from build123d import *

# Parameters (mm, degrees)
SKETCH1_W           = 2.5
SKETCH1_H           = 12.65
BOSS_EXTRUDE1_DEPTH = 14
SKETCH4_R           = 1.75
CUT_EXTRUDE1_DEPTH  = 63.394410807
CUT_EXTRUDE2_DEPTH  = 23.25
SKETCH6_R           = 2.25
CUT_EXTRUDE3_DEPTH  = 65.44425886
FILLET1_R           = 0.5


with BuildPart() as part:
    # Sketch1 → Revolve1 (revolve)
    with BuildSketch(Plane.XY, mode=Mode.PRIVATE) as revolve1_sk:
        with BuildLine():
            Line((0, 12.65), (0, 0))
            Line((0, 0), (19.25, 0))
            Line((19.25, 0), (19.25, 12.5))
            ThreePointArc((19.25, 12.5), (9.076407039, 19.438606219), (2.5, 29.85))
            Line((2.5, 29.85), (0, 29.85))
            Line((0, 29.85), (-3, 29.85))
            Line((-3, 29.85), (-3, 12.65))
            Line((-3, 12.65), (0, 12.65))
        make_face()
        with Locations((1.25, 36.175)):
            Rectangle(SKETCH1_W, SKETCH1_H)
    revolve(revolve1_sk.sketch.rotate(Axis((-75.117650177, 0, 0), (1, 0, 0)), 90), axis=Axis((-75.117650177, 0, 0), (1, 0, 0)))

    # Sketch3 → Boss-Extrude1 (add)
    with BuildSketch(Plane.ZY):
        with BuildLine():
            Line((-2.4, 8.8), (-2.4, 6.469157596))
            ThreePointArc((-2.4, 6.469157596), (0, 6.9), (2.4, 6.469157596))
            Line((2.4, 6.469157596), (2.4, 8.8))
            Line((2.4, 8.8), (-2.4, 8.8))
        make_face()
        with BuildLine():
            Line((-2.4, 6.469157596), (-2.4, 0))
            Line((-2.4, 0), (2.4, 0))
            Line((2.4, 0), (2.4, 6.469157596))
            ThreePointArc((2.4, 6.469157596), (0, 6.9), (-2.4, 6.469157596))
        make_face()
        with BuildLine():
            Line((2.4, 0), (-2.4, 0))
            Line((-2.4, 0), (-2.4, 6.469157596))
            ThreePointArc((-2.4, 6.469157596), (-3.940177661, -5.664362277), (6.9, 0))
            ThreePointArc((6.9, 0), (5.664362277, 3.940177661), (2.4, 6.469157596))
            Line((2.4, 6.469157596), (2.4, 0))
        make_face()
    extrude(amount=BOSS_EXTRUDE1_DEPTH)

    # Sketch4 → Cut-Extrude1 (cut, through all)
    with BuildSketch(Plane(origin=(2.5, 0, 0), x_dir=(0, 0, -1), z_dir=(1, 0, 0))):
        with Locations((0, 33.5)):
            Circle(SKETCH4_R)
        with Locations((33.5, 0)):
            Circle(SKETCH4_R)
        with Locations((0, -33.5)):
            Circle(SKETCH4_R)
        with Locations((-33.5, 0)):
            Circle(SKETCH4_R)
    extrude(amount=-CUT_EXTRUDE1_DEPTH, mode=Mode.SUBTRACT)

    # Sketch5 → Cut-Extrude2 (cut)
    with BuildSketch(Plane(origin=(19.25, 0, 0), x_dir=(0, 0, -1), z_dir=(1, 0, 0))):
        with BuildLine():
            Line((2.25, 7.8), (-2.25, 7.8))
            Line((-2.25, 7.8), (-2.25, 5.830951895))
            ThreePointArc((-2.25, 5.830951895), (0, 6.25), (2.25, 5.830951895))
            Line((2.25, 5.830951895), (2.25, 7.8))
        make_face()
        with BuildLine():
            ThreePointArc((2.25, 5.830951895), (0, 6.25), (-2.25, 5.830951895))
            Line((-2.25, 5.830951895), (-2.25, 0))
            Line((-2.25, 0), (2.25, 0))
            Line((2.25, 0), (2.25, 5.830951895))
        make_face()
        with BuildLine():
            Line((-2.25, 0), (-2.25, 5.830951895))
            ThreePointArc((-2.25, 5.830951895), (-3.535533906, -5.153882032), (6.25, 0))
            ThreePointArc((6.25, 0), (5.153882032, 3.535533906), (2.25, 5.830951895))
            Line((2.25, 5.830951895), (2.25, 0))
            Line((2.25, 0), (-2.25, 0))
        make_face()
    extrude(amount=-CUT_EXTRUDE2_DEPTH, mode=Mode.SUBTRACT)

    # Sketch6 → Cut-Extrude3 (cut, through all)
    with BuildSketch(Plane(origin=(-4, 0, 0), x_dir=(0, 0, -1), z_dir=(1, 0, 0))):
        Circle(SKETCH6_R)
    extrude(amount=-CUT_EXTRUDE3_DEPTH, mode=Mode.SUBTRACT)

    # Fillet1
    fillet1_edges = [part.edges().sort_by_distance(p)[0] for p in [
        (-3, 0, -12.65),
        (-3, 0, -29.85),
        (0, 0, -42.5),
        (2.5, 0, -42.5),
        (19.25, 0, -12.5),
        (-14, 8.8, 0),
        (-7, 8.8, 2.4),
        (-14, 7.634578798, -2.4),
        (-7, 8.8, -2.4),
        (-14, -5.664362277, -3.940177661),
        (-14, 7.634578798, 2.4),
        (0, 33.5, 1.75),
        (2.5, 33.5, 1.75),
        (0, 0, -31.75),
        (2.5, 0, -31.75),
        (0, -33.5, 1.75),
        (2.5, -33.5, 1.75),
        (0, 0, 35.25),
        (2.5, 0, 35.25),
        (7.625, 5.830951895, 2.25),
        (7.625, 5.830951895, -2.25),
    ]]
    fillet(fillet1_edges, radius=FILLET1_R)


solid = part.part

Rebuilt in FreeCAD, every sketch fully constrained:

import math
import FreeCAD as App
import Part
import Sketcher
from FreeCAD import Vector


def edges_at(feature, points):
    """Names of the edges that pass closest to the given points."""
    edges = feature.Shape.Edges
    near = lambda p: min(range(len(edges)), key=lambda i: edges[i].distToShape(Part.Vertex(*p))[0])
    return sorted({f"Edge{near(p) + 1}" for p in points})

doc = App.newDocument("Part")
params = doc.addObject("Spreadsheet::Sheet", "Params")
for row, (alias, value) in enumerate([
    ("sketch1_width", "3 mm"),
    ("sketch1_width2", "2.5 mm"),
    ("sketch1_height", "12.5 mm"),
    ("sketch1_height2", "17.2 mm"),
    ("sketch1_width3", "19.25 mm"),
    ("revolution_angle", "360 deg"),
    ("sketch2_radius", "6.9 mm"),
    ("sketch2_height", "4.8 mm"),
    ("pad1_length", "14 mm"),
    ("sketch3_diameter", "3.5 mm"),
    ("sketch4_radius", "6.25 mm"),
    ("sketch4_height", "4.5 mm"),
    ("pocket2_length", "23.25 mm"),
    ("sketch5_diameter", "4.5 mm"),
    ("fillet_radius", "0.5 mm"),
], start=1):
    params.set(f"A{row}", alias)
    params.set(f"B{row}", "=" + value)
    params.setAlias(f"B{row}", alias)

body = doc.addObject("PartDesign::Body", "Body")

sketch1 = body.newObject("Sketcher::SketchObject", "Sketch")
sketch1.AttachmentSupport = (doc.getObject("XY_Plane"), [""])
sketch1.MapMode = "FlatFace"
sketch1.addGeometry(Part.LineSegment(Vector(0, 12.7, 0), Vector(0, 0, 0)), False)
sketch1.addGeometry(Part.LineSegment(Vector(0, 0, 0), Vector(19.2, 0, 0)), False)
sketch1.addGeometry(Part.LineSegment(Vector(19.2, 0, 0), Vector(19.2, 12.5, 0)), False)
sketch1.addGeometry(Part.ArcOfCircle(Part.Circle(Vector(30.9, 40.5, 0), Vector(0, 0, 1), 30.3), math.radians(-159), math.radians(-113)), False)
sketch1.addGeometry(Part.LineSegment(Vector(2.5, 29.9, 0), Vector(2.5, 42.5, 0)), False)
sketch1.addGeometry(Part.LineSegment(Vector(2.5, 42.5, 0), Vector(0, 42.5, 0)), False)
sketch1.addGeometry(Part.LineSegment(Vector(0, 42.5, 0), Vector(0, 29.9, 0)), False)
sketch1.addGeometry(Part.LineSegment(Vector(0, 29.9, 0), Vector(-3, 29.9, 0)), False)
sketch1.addGeometry(Part.LineSegment(Vector(-3, 29.9, 0), Vector(-3, 12.7, 0)), False)
sketch1.addGeometry(Part.LineSegment(Vector(-3, 12.7, 0), Vector(0, 12.7, 0)), False)
sketch1.addConstraint(Sketcher.Constraint("Coincident", 0, 2, 1, 1))
sketch1.addConstraint(Sketcher.Constraint("Coincident", 1, 2, 2, 1))
sketch1.addConstraint(Sketcher.Constraint("Coincident", 2, 2, 3, 2))
sketch1.addConstraint(Sketcher.Constraint("Coincident", 3, 1, 4, 1))
sketch1.addConstraint(Sketcher.Constraint("Coincident", 4, 2, 5, 1))
sketch1.addConstraint(Sketcher.Constraint("Coincident", 5, 2, 6, 1))
sketch1.addConstraint(Sketcher.Constraint("Coincident", 6, 2, 7, 1))
sketch1.addConstraint(Sketcher.Constraint("Coincident", 7, 2, 8, 1))
sketch1.addConstraint(Sketcher.Constraint("Coincident", 8, 2, 9, 1))
sketch1.addConstraint(Sketcher.Constraint("Coincident", 9, 2, 0, 1))
sketch1.addConstraint(Sketcher.Constraint("Vertical", 0))
sketch1.addConstraint(Sketcher.Constraint("Horizontal", 1))
sketch1.addConstraint(Sketcher.Constraint("Vertical", 2))
sketch1.addConstraint(Sketcher.Constraint("Vertical", 4))
sketch1.addConstraint(Sketcher.Constraint("Horizontal", 5))
sketch1.addConstraint(Sketcher.Constraint("Vertical", 6))
sketch1.addConstraint(Sketcher.Constraint("Horizontal", 7))
sketch1.addConstraint(Sketcher.Constraint("Vertical", 8))
sketch1.addConstraint(Sketcher.Constraint("Horizontal", 9))
sketch1.addConstraint(Sketcher.Constraint("Coincident", 0, 2, -1, 1))
sketch1.addConstraint(Sketcher.Constraint("PointOnObject", 5, 2, -2))
sketch1.addConstraint(Sketcher.Constraint("Horizontal", 3, 1, 6, 2))
sketch1.addConstraint(Sketcher.Constraint("Equal", 0, 4))
sketch1.addConstraint(Sketcher.Constraint("DistanceX", 7, 2, 7, 1, 3.0))
sketch1.addConstraint(Sketcher.Constraint("DistanceX", 5, 2, 5, 1, 2.5))
sketch1.addConstraint(Sketcher.Constraint("DistanceY", 2, 1, 2, 2, 12.5))
sketch1.addConstraint(Sketcher.Constraint("DistanceY", 8, 2, 8, 1, 17.2))
sketch1.addConstraint(Sketcher.Constraint("DistanceY", 2, 2, 4, 2, 30.0))
sketch1.addConstraint(Sketcher.Constraint("DistanceX", 1, 1, 1, 2, 19.25))
sketch1.addConstraint(Sketcher.Constraint("Radius", 3, 30.32925))
sketch1.setExpression("Constraints[23]", "Params.sketch1_width")
sketch1.setExpression("Constraints[24]", "Params.sketch1_width2")
sketch1.setExpression("Constraints[25]", "Params.sketch1_height")
sketch1.setExpression("Constraints[26]", "Params.sketch1_height2")
sketch1.setExpression("Constraints[28]", "Params.sketch1_width3")
revolution = body.newObject("PartDesign::Revolution", "Revolution")
revolution.Profile = sketch1
revolution.ReferenceAxis = (sketch1, ["H_Axis"])
revolution.setExpression("Angle", "Params.revolution_angle")

sketch2 = body.newObject("Sketcher::SketchObject", "Sketch001")
sketch2.AttachmentSupport = (doc.getObject("YZ_Plane"), [""])
sketch2.MapMode = "FlatFace"
sketch2.addGeometry(Part.LineSegment(Vector(6.5, 2.4, 0), Vector(8.8, 2.4, 0)), False)
sketch2.addGeometry(Part.LineSegment(Vector(8.8, 2.4, 0), Vector(8.8, -2.4, 0)), False)
sketch2.addGeometry(Part.LineSegment(Vector(8.8, -2.4, 0), Vector(6.5, -2.4, 0)), False)
sketch2.addGeometry(Part.ArcOfCircle(Part.Circle(Vector(0, 0, 0), Vector(0, 0, 1), 6.9), math.radians(90), math.radians(340)), False)
sketch2.addGeometry(Part.ArcOfCircle(Part.Circle(Vector(0, 0, 0), Vector(0, 0, 1), 6.9), math.radians(20), math.radians(90)), False)
sketch2.addConstraint(Sketcher.Constraint("Coincident", 0, 2, 1, 1))
sketch2.addConstraint(Sketcher.Constraint("Coincident", 1, 2, 2, 1))
sketch2.addConstraint(Sketcher.Constraint("Coincident", 2, 2, 3, 2))
sketch2.addConstraint(Sketcher.Constraint("Tangent", 3, 1, 4, 2))
sketch2.addConstraint(Sketcher.Constraint("Coincident", 4, 1, 0, 1))
sketch2.addConstraint(Sketcher.Constraint("Horizontal", 0))
sketch2.addConstraint(Sketcher.Constraint("Vertical", 1))
sketch2.addConstraint(Sketcher.Constraint("Horizontal", 2))
sketch2.addConstraint(Sketcher.Constraint("Coincident", 3, 3, -1, 1))
sketch2.addConstraint(Sketcher.Constraint("Equal", 3, 4))
sketch2.addConstraint(Sketcher.Constraint("PointOnObject", 3, 1, -2))
sketch2.addConstraint(Sketcher.Constraint("Vertical", 2, 2, 4, 1))
sketch2.addConstraint(Sketcher.Constraint("Radius", 3, 6.9))
sketch2.addConstraint(Sketcher.Constraint("DistanceY", 1, 2, 1, 1, 4.8))
sketch2.addConstraint(Sketcher.Constraint("DistanceX", -1, 1, 0, 2, 8.8))
sketch2.setExpression("Constraints[12]", "Params.sketch2_radius")
sketch2.setExpression("Constraints[13]", "Params.sketch2_height")
pad1 = body.newObject("PartDesign::Pad", "Pad")
pad1.Profile = sketch2
pad1.setExpression("Length", "Params.pad1_length")
pad1.Reversed = True

sketch3 = body.newObject("Sketcher::SketchObject", "Sketch002")
sketch3.AttachmentSupport = (doc.getObject("YZ_Plane"), [""])
sketch3.MapMode = "FlatFace"
sketch3.AttachmentOffset = App.Placement(Vector(0, 0, 2.5), App.Rotation())
sketch3.addGeometry(Part.Circle(Vector(33.5, 0, 0), Vector(0, 0, 1), 1.8), False)
sketch3.addGeometry(Part.Circle(Vector(0, -33.5, 0), Vector(0, 0, 1), 1.8), False)
sketch3.addGeometry(Part.Circle(Vector(-33.5, 0, 0), Vector(0, 0, 1), 1.8), False)
sketch3.addGeometry(Part.Circle(Vector(0, 33.5, 0), Vector(0, 0, 1), 1.8), False)
sketch3.addConstraint(Sketcher.Constraint("Equal", 0, 1))
sketch3.addConstraint(Sketcher.Constraint("Equal", 1, 2))
sketch3.addConstraint(Sketcher.Constraint("Equal", 2, 3))
sketch3.addConstraint(Sketcher.Constraint("Symmetric", 0, 3, 2, 3, -1, 1))
sketch3.addConstraint(Sketcher.Constraint("Symmetric", 1, 3, 3, 3, -1, 1))
sketch3.addConstraint(Sketcher.Constraint("PointOnObject", 0, 3, -1))
sketch3.addConstraint(Sketcher.Constraint("PointOnObject", 1, 3, -2))
sketch3.addConstraint(Sketcher.Constraint("Diameter", 0, 3.5))
sketch3.addConstraint(Sketcher.Constraint("DistanceX", 2, 3, 0, 3, 67.0))
sketch3.addConstraint(Sketcher.Constraint("DistanceY", 1, 3, 3, 3, 67.0))
sketch3.setExpression("Constraints[7]", "Params.sketch3_diameter")
pocket1 = body.newObject("PartDesign::Pocket", "Pocket")
pocket1.Profile = sketch3
pocket1.Type = "ThroughAll"

sketch4 = body.newObject("Sketcher::SketchObject", "Sketch003")
sketch4.AttachmentSupport = (doc.getObject("YZ_Plane"), [""])
sketch4.MapMode = "FlatFace"
sketch4.AttachmentOffset = App.Placement(Vector(0, 0, 19.25), App.Rotation())
sketch4.addGeometry(Part.LineSegment(Vector(7.8, 2.2, 0), Vector(5.8, 2.2, 0)), False)
sketch4.addGeometry(Part.ArcOfCircle(Part.Circle(Vector(0, 0, 0), Vector(0, 0, 1), 6.2), math.radians(21), math.radians(270)), False)
sketch4.addGeometry(Part.ArcOfCircle(Part.Circle(Vector(0, 0, 0), Vector(0, 0, 1), 6.2), math.radians(-90), math.radians(-21)), False)
sketch4.addGeometry(Part.LineSegment(Vector(5.8, -2.2, 0), Vector(7.8, -2.2, 0)), False)
sketch4.addGeometry(Part.LineSegment(Vector(7.8, -2.2, 0), Vector(7.8, 2.2, 0)), False)
sketch4.addConstraint(Sketcher.Constraint("Coincident", 0, 2, 1, 1))
sketch4.addConstraint(Sketcher.Constraint("Tangent", 1, 2, 2, 1))
sketch4.addConstraint(Sketcher.Constraint("Coincident", 2, 2, 3, 1))
sketch4.addConstraint(Sketcher.Constraint("Coincident", 3, 2, 4, 1))
sketch4.addConstraint(Sketcher.Constraint("Coincident", 4, 2, 0, 1))
sketch4.addConstraint(Sketcher.Constraint("Horizontal", 0))
sketch4.addConstraint(Sketcher.Constraint("Horizontal", 3))
sketch4.addConstraint(Sketcher.Constraint("Vertical", 4))
sketch4.addConstraint(Sketcher.Constraint("Coincident", 1, 3, -1, 1))
sketch4.addConstraint(Sketcher.Constraint("Equal", 1, 2))
sketch4.addConstraint(Sketcher.Constraint("PointOnObject", 1, 2, -2))
sketch4.addConstraint(Sketcher.Constraint("Vertical", 0, 2, 2, 2))
sketch4.addConstraint(Sketcher.Constraint("Radius", 1, 6.25))
sketch4.addConstraint(Sketcher.Constraint("DistanceY", 4, 1, 4, 2, 4.5))
sketch4.addConstraint(Sketcher.Constraint("DistanceX", -1, 1, 3, 2, 7.8))
sketch4.setExpression("Constraints[12]", "Params.sketch4_radius")
sketch4.setExpression("Constraints[13]", "Params.sketch4_height")
pocket2 = body.newObject("PartDesign::Pocket", "Pocket001")
pocket2.Profile = sketch4
pocket2.setExpression("Length", "Params.pocket2_length")

sketch5 = body.newObject("Sketcher::SketchObject", "Sketch004")
sketch5.AttachmentSupport = (doc.getObject("YZ_Plane"), [""])
sketch5.MapMode = "FlatFace"
sketch5.AttachmentOffset = App.Placement(Vector(0, 0, -4), App.Rotation())
sketch5.addGeometry(Part.Circle(Vector(0, 0, 0), Vector(0, 0, 1), 2.2), False)
sketch5.addConstraint(Sketcher.Constraint("Coincident", 0, 3, -1, 1))
sketch5.addConstraint(Sketcher.Constraint("Diameter", 0, 4.5))
sketch5.setExpression("Constraints[1]", "Params.sketch5_diameter")
pocket3 = body.newObject("PartDesign::Pocket", "Pocket002")
pocket3.Profile = sketch5
pocket3.Type = "ThroughAll"
doc.recompute()

fillet = body.newObject("PartDesign::Fillet", "Fillet")
fillet.Base = (pocket3, edges_at(pocket3, [
    (-3, 0, -12.65),
    (-3, 0, -29.85),
    (0, 0, -42.5),
    (2.5, 0, -42.5),
    (19.25, 0, -12.5),
    (-14, 8.8, 0),
    (-7, 8.8, 2.4),
    (-14, 7.635, -2.4),
    (-7, 8.8, -2.4),
    (-14, -5.664, -3.94),
    (-14, 7.635, 2.4),
    (0, 33.5, 1.75),
    (2.5, 33.5, 1.75),
    (0, 0, -31.75),
    (2.5, 0, -31.75),
    (0, -33.5, 1.75),
    (2.5, -33.5, 1.75),
    (0, 0, 35.25),
    (2.5, 0, 35.25),
    (7.625, 5.831, 2.25),
    (7.625, 5.831, -2.25),
]))
fillet.setExpression("Radius", "Params.fillet_radius")

doc.recompute()
